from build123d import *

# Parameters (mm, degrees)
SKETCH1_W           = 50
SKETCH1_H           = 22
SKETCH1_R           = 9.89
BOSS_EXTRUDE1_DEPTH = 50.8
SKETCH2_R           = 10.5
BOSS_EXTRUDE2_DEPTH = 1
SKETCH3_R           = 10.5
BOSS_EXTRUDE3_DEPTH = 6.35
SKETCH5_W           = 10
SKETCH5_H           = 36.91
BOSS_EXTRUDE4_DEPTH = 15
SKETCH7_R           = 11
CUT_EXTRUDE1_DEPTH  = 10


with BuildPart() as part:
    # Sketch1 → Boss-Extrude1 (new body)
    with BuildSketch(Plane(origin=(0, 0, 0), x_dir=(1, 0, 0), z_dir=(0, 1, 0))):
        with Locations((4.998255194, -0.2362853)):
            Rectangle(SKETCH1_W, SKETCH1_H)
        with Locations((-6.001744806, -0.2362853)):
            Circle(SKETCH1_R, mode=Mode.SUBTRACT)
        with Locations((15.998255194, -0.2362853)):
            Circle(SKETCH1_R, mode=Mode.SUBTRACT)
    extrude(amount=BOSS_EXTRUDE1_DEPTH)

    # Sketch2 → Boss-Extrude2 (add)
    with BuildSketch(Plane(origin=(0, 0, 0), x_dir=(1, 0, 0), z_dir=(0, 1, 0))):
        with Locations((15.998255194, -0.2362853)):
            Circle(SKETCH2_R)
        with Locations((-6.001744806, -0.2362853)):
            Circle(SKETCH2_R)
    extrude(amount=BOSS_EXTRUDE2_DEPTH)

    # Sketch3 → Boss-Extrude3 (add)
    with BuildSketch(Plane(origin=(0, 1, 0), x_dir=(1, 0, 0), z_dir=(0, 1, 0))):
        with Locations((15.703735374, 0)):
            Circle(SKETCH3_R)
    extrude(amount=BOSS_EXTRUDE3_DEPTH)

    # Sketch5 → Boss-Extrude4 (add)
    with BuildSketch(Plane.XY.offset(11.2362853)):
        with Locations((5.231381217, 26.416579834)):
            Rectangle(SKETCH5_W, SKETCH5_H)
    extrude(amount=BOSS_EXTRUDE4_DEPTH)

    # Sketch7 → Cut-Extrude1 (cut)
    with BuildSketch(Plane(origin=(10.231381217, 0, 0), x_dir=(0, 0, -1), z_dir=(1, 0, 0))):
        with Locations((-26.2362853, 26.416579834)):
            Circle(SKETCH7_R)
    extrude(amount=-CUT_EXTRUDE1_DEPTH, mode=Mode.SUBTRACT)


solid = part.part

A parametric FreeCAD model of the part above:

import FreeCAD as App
import Part
import Sketcher
from FreeCAD import Vector

doc = App.newDocument("Part")
body = doc.addObject("PartDesign::Body", "Body")

sketch1 = doc.addObject("Sketcher::SketchObject", "Sketch")
body.addObject(sketch1)
sketch1.AttachmentSupport = (doc.XZ_Plane, [""])
sketch1.MapMode = "FlatFace"
sketch1.addGeometry(Part.LineSegment(Vector(-20, -11, 0), Vector(-20, 11, 0)), False)
sketch1.addGeometry(Part.LineSegment(Vector(-20, 11, 0), Vector(30, 11, 0)), False)
sketch1.addGeometry(Part.LineSegment(Vector(30, 11, 0), Vector(30, -11, 0)), False)
sketch1.addGeometry(Part.LineSegment(Vector(30, -11, 0), Vector(-20, -11, 0)), False)
sketch1.addGeometry(Part.Circle(Vector(-6, 0, 0), Vector(0, 0, 1), 10), False)
sketch1.addGeometry(Part.Circle(Vector(16, 0, 0), Vector(0, 0, 1), 10), False)
sketch1.addConstraint(Sketcher.Constraint("Coincident", 0, 2, 1, 1))
sketch1.addConstraint(Sketcher.Constraint("Coincident", 1, 2, 2, 1))
sketch1.addConstraint(Sketcher.Constraint("Coincident", 2, 2, 3, 1))
sketch1.addConstraint(Sketcher.Constraint("Coincident", 3, 2, 0, 1))
sketch1.addConstraint(Sketcher.Constraint("Vertical", 0))
sketch1.addConstraint(Sketcher.Constraint("Horizontal", 1))
sketch1.addConstraint(Sketcher.Constraint("Vertical", 2))
sketch1.addConstraint(Sketcher.Constraint("Horizontal", 3))
sketch1.addConstraint(Sketcher.Constraint("Equal", 4, 5))
sketch1.addConstraint(Sketcher.Constraint("Horizontal", 4, 3, 5, 3))
sketch1.addConstraint(Sketcher.Constraint("Diameter", 4, 19.78))
sketch1.addConstraint(Sketcher.Constraint("DistanceX", 1, 1, 1, 2, 50.0))
sketch1.addConstraint(Sketcher.Constraint("DistanceY", 0, 1, 0, 2, 22.0))
sketch1.addConstraint(Sketcher.Constraint("DistanceX", 4, 3, 5, 3, 22.0))
sketch1.addConstraint(Sketcher.Constraint("DistanceX", 0, 2, 4, 3, 14.0))
sketch1.addConstraint(Sketcher.Constraint("DistanceY", 4, 3, 0, 2, 11.0))
sketch1.addConstraint(Sketcher.Constraint("DistanceX", 4, 3, -1, 1, 6.001745))
sketch1.addConstraint(Sketcher.Constraint("DistanceY", -1, 1, 4, 3, 0.236285))
pad1 = doc.addObject("PartDesign::Pad", "Pad")
body.addObject(pad1)
pad1.Profile = sketch1
pad1.Length = 50.8
pad1.Reversed = True

sketch2 = doc.addObject("Sketcher::SketchObject", "Sketch001")
body.addObject(sketch2)
sketch2.AttachmentSupport = (doc.XZ_Plane, [""])
sketch2.MapMode = "FlatFace"
sketch2.addGeometry(Part.Circle(Vector(16, 0, 0), Vector(0, 0, 1), 10), False)
sketch2.addGeometry(Part.Circle(Vector(-6, 0, 0), Vector(0, 0, 1), 10), False)
sketch2.addConstraint(Sketcher.Constraint("Equal", 0, 1))
sketch2.addConstraint(Sketcher.Constraint("Horizontal", 0, 3, 1, 3))
sketch2.addConstraint(Sketcher.Constraint("Diameter", 0, 21.0))
sketch2.addConstraint(Sketcher.Constraint("DistanceX", 1, 3, 0, 3, 22.0))
sketch2.addConstraint(Sketcher.Constraint("DistanceX", -1, 1, 0, 3, 15.998255))
sketch2.addConstraint(Sketcher.Constraint("DistanceY", -1, 1, 0, 3, 0.236285))
pad2 = doc.addObject("PartDesign::Pad", "Pad001")
body.addObject(pad2)
pad2.Profile = sketch2
pad2.Length = 1
pad2.Reversed = True

sketch3 = doc.addObject("Sketcher::SketchObject", "Sketch002")
body.addObject(sketch3)
sketch3.AttachmentSupport = (doc.XZ_Plane, [""])
sketch3.MapMode = "FlatFace"
sketch3.AttachmentOffset = App.Placement(Vector(0, 0, -1), App.Rotation())
sketch3.addGeometry(Part.Circle(Vector(16, 0, 0), Vector(0, 0, 1), 10), False)
sketch3.addConstraint(Sketcher.Constraint("PointOnObject", 0, 3, -1))
sketch3.addConstraint(Sketcher.Constraint("Diameter", 0, 21.0))
sketch3.addConstraint(Sketcher.Constraint("DistanceX", -1, 1, 0, 3, 15.703735))
pad3 = doc.addObject("PartDesign::Pad", "Pad002")
body.addObject(pad3)
pad3.Profile = sketch3
pad3.Length = 6.35
pad3.Reversed = True

sketch4 = doc.addObject("Sketcher::SketchObject", "Sketch003")
body.addObject(sketch4)
sketch4.AttachmentSupport = (doc.XY_Plane, [""])
sketch4.MapMode = "FlatFace"
sketch4.AttachmentOffset = App.Placement(Vector(0, 0, 11.236285), App.Rotation())
sketch4.addGeometry(Part.LineSegment(Vector(0, 45, 0), Vector(0, 8, 0)), False)
sketch4.addGeometry(Part.LineSegment(Vector(0, 8, 0), Vector(10, 8, 0)), False)
sketch4.addGeometry(Part.LineSegment(Vector(10, 8, 0), Vector(10, 45, 0)), False)
sketch4.addGeometry(Part.LineSegment(Vector(10, 45, 0), Vector(0, 45, 0)), False)
sketch4.addConstraint(Sketcher.Constraint("Coincident", 0, 2, 1, 1))
sketch4.addConstraint(Sketcher.Constraint("Coincident", 1, 2, 2, 1))
sketch4.addConstraint(Sketcher.Constraint("Coincident", 2, 2, 3, 1))
sketch4.addConstraint(Sketcher.Constraint("Coincident", 3, 2, 0, 1))
sketch4.addConstraint(Sketcher.Constraint("Vertical", 0))
sketch4.addConstraint(Sketcher.Constraint("Horizontal", 1))
sketch4.addConstraint(Sketcher.Constraint("Vertical", 2))
sketch4.addConstraint(Sketcher.Constraint("Horizontal", 3))
sketch4.addConstraint(Sketcher.Constraint("DistanceX", 1, 1, 1, 2, 10.0))
sketch4.addConstraint(Sketcher.Constraint("DistanceY", 0, 2, 0, 1, 36.91))
sketch4.addConstraint(Sketcher.Constraint("DistanceX", -1, 1, 0, 2, 0.231381))
sketch4.addConstraint(Sketcher.Constraint("DistanceY", -1, 1, 0, 2, 7.96158))
pad4 = doc.addObject("PartDesign::Pad", "Pad003")
body.addObject(pad4)
pad4.Profile = sketch4
pad4.Length = 15

sketch5 = doc.addObject("Sketcher::SketchObject", "Sketch004")
body.addObject(sketch5)
sketch5.AttachmentSupport = (doc.YZ_Plane, [""])
sketch5.MapMode = "FlatFace"
sketch5.AttachmentOffset = App.Placement(Vector(0, 0, 10.231381), App.Rotation())
sketch5.addGeometry(Part.Circle(Vector(26, 26, 0), Vector(0, 0, 1), 11), False)
sketch5.addConstraint(Sketcher.Constraint("Diameter", 0, 22.0))
sketch5.addConstraint(Sketcher.Constraint("DistanceX", -1, 1, 0, 3, 26.41658))
sketch5.addConstraint(Sketcher.Constraint("DistanceY", -1, 1, 0, 3, 26.236285))
pocket1 = doc.addObject("PartDesign::Pocket", "Pocket")
body.addObject(pocket1)
pocket1.Profile = sketch5
pocket1.Length = 10

doc.recompute()
